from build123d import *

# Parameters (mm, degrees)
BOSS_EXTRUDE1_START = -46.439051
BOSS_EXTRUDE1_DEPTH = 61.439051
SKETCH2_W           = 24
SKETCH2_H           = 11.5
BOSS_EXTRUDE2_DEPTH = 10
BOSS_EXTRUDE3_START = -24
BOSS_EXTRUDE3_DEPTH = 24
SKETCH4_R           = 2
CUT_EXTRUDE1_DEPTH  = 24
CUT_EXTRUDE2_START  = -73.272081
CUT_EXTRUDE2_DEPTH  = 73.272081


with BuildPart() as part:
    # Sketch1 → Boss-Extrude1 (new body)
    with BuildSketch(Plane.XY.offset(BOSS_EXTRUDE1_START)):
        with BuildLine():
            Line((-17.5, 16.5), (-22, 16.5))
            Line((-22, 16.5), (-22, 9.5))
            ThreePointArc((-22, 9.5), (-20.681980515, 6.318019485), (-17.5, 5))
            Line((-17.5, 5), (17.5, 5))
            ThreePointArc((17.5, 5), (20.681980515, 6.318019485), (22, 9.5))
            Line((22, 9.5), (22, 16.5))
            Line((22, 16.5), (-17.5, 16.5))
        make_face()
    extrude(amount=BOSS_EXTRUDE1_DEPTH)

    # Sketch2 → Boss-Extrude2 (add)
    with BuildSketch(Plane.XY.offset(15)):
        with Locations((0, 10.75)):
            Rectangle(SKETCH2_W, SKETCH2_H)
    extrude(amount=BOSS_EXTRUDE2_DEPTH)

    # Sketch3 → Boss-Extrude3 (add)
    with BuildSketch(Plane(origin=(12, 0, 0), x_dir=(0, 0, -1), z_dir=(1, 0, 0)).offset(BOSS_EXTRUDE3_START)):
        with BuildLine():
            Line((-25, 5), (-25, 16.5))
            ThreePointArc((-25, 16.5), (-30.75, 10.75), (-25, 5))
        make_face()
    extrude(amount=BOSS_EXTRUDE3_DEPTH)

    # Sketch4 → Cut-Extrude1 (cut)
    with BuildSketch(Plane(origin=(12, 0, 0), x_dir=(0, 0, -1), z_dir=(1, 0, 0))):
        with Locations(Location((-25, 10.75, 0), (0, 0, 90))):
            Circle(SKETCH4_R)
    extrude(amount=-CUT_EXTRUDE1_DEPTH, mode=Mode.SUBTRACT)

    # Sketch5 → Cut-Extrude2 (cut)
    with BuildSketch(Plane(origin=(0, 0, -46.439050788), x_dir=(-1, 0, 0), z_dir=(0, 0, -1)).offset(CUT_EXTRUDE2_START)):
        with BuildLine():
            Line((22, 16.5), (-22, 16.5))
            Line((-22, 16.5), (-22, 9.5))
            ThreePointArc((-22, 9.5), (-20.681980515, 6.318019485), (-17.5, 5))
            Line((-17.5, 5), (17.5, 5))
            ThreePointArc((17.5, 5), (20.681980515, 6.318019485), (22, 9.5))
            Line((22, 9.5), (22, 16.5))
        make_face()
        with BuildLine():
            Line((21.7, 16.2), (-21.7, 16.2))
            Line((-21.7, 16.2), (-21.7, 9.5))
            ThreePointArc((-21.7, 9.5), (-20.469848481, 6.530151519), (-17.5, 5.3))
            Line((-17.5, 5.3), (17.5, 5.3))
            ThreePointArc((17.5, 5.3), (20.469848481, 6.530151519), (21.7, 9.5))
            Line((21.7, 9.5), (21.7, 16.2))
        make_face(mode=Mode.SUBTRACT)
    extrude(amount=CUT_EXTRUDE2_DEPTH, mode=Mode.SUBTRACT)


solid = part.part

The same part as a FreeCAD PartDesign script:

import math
import FreeCAD as App
import Part
import Sketcher
from FreeCAD import Vector
Q = App.Units.Quantity


def add_polygon(sketch, points):
    """Adds a closed chain of lines whose ends are joined by coincident constraints."""
    first, n = sketch.GeometryCount, len(points)
    for a, b in zip(points, points[1:] + points[:1]):
        sketch.addGeometry(Part.LineSegment(App.Vector(*a, 0), App.Vector(*b, 0)), False)
    for i in range(n):
        sketch.addConstraint(Sketcher.Constraint("Coincident", first + i, 2, first + (i + 1) % n, 1))

doc = App.newDocument("Part")
params = doc.addObject("Spreadsheet::Sheet", "Params")
for row, (alias, value) in enumerate([
    ("sketch1_radius", "4.5 mm"),
    ("sketch1_width", "35 mm"),
    ("sketch1_height", "7 mm"),
    ("pad1_length", "61.439051 mm"),
    ("sketch2_width", "24 mm"),
    ("sketch2_height", "11.5 mm"),
    ("pad2_length", "10 mm"),
    ("sketch3_radius", "5.75 mm"),
    ("pad3_length", "24 mm"),
    ("sketch4_diameter", "4 mm"),
    ("pocket1_length", "24 mm"),
    ("sketch5_radius", "4.5 mm"),
    ("sketch5_radius2", "4.2 mm"),
    ("sketch5_width", "44 mm"),
    ("sketch5_height", "7 mm"),
    ("sketch5_height2", "6.7 mm"),
    ("pocket2_length", "73.272081 mm"),
], start=1):
    params.set(f"A{row}", alias)
    params.set(f"B{row}", "=" + value)
    params.setAlias(f"B{row}", alias)

body = doc.addObject("PartDesign::Body", "Body")

# Sketch on XY plane
sketch1 = doc.addObject("Sketcher::SketchObject", "Sketch")
body.addObject(sketch1)
sketch1.AttachmentSupport = (doc.XY_Plane, [""])
sketch1.MapMode = "FlatFace"
sketch1.AttachmentOffset = App.Placement(Vector(0, 0, -46.439051), App.Rotation())
sketch1.addGeometry(Part.LineSegment(Vector(-22, 16.5, 0), Vector(-22, 9.5, 0)), False)
sketch1.addGeometry(Part.ArcOfCircle(Part.Circle(Vector(-17.5, 9.5, 0), Vector(0, 0, 1), 4.5), math.radians(-180), math.radians(-90)), False)
sketch1.addGeometry(Part.LineSegment(Vector(-17.5, 5, 0), Vector(17.5, 5, 0)), False)
sketch1.addGeometry(Part.ArcOfCircle(Part.Circle(Vector(17.5, 9.5, 0), Vector(0, 0, 1), 4.5), math.radians(-90), math.radians(0)), False)
sketch1.addGeometry(Part.LineSegment(Vector(22, 9.5, 0), Vector(22, 16.5, 0)), False)
sketch1.addGeometry(Part.LineSegment(Vector(22, 16.5, 0), Vector(-22, 16.5, 0)), False)
sketch1.addConstraint(Sketcher.Constraint("Tangent", 0, 2, 1, 1))
sketch1.addConstraint(Sketcher.Constraint("Tangent", 1, 2, 2, 1))
sketch1.addConstraint(Sketcher.Constraint("Tangent", 2, 2, 3, 1))
sketch1.addConstraint(Sketcher.Constraint("Tangent", 3, 2, 4, 1))
sketch1.addConstraint(Sketcher.Constraint("Coincident", 4, 2, 5, 1))
sketch1.addConstraint(Sketcher.Constraint("Coincident", 5, 2, 0, 1))
sketch1.addConstraint(Sketcher.Constraint("Vertical", 0))
sketch1.addConstraint(Sketcher.Constraint("Horizontal", 2))
sketch1.addConstraint(Sketcher.Constraint("Vertical", 4))
sketch1.addConstraint(Sketcher.Constraint("Horizontal", 5))
sketch1.addConstraint(Sketcher.Constraint("Equal", 1, 3))
sketch1.addConstraint(Sketcher.Constraint("Radius", 1, Q("4.5 mm")))
sketch1.addConstraint(Sketcher.Constraint("DistanceX", 2, 1, 2, 2, Q("35 mm")))
sketch1.addConstraint(Sketcher.Constraint("DistanceY", 0, 2, 0, 1, Q("7 mm")))
sketch1.addConstraint(Sketcher.Constraint("DistanceX", 0, 2, -1, 1, Q("22 mm")))
sketch1.addConstraint(Sketcher.Constraint("DistanceY", -1, 1, 1, 2, Q("5 mm")))
sketch1.setExpression("Constraints[11]", "Params.sketch1_radius")
sketch1.setExpression("Constraints[12]", "Params.sketch1_width")
sketch1.setExpression("Constraints[13]", "Params.sketch1_height")
pad1 = doc.addObject("PartDesign::Pad", "Pad")
body.addObject(pad1)
pad1.Profile = sketch1
pad1.setExpression("Length", "Params.pad1_length")

# Sketch on XY plane
sketch2 = doc.addObject("Sketcher::SketchObject", "Sketch001")
body.addObject(sketch2)
sketch2.AttachmentSupport = (doc.XY_Plane, [""])
sketch2.MapMode = "FlatFace"
sketch2.AttachmentOffset = App.Placement(Vector(0, 0, 15), App.Rotation())
add_polygon(sketch2, [(-12, 16), (-12, 5), (12, 5), (12, 16)])  # lines 0-3
sketch2.addConstraint(Sketcher.Constraint("Vertical", 0))
sketch2.addConstraint(Sketcher.Constraint("Horizontal", 1))
sketch2.addConstraint(Sketcher.Constraint("Vertical", 2))
sketch2.addConstraint(Sketcher.Constraint("Horizontal", 3))
sketch2.addConstraint(Sketcher.Constraint("DistanceX", 1, 1, 1, 2, Q("24 mm")))
sketch2.addConstraint(Sketcher.Constraint("DistanceY", 0, 2, 0, 1, Q("11.5 mm")))
sketch2.addConstraint(Sketcher.Constraint("DistanceX", 0, 2, -1, 1, Q("12 mm")))
sketch2.addConstraint(Sketcher.Constraint("DistanceY", -1, 1, 0, 2, Q("5 mm")))
sketch2.setExpression("Constraints[8]", "Params.sketch2_width")
sketch2.setExpression("Constraints[9]", "Params.sketch2_height")
pad2 = doc.addObject("PartDesign::Pad", "Pad001")
body.addObject(pad2)
pad2.Profile = sketch2
pad2.setExpression("Length", "Params.pad2_length")

# Sketch on YZ plane
sketch3 = doc.addObject("Sketcher::SketchObject", "Sketch002")
body.addObject(sketch3)
sketch3.AttachmentSupport = (doc.YZ_Plane, [""])
sketch3.MapMode = "FlatFace"
sketch3.AttachmentOffset = App.Placement(Vector(0, 0, -12), App.Rotation())
sketch3.addGeometry(Part.LineSegment(Vector(5, 25, 0), Vector(16, 25, 0)), False)
sketch3.addGeometry(Part.ArcOfCircle(Part.Circle(Vector(11, 25, 0), Vector(0, 0, 1), 6), math.radians(0), math.radians(180)), False)
sketch3.addConstraint(Sketcher.Constraint("Coincident", 0, 1, 1, 2))
sketch3.addConstraint(Sketcher.Constraint("Coincident", 1, 1, 0, 2))
sketch3.addConstraint(Sketcher.Constraint("Horizontal", 0))
sketch3.addConstraint(Sketcher.Constraint("Horizontal", 1, 3, 0, 1))
sketch3.addConstraint(Sketcher.Constraint("Radius", 1, Q("5.75 mm")))
sketch3.addConstraint(Sketcher.Constraint("DistanceY", -1, 1, 1, 3, Q("25 mm")))
sketch3.addConstraint(Sketcher.Constraint("DistanceX", -1, 1, 0, 1, Q("5 mm")))
sketch3.setExpression("Constraints[4]", "Params.sketch3_radius")
pad3 = doc.addObject("PartDesign::Pad", "Pad002")
body.addObject(pad3)
pad3.Profile = sketch3
pad3.setExpression("Length", "Params.pad3_length")

# Sketch on YZ plane
sketch4 = doc.addObject("Sketcher::SketchObject", "Sketch003")
body.addObject(sketch4)
sketch4.AttachmentSupport = (doc.YZ_Plane, [""])
sketch4.MapMode = "FlatFace"
sketch4.AttachmentOffset = App.Placement(Vector(0, 0, 12), App.Rotation())
sketch4.addGeometry(Part.Circle(Vector(10.8, 25, 0), Vector(0, 0, 1), 2), False)
sketch4.addConstraint(Sketcher.Constraint("Diameter", 0, Q("4 mm")))
sketch4.addConstraint(Sketcher.Constraint("DistanceY", -1, 1, 0, 3, Q("25 mm")))
sketch4.addConstraint(Sketcher.Constraint("DistanceX", -1, 1, 0, 3, Q("10.75 mm")))
sketch4.setExpression("Constraints[0]", "Params.sketch4_diameter")
pocket1 = doc.addObject("PartDesign::Pocket", "Pocket")
body.addObject(pocket1)
pocket1.Profile = sketch4
pocket1.setExpression("Length", "Params.pocket1_length")

# Sketch on XY plane
sketch5 = doc.addObject("Sketcher::SketchObject", "Sketch004")
body.addObject(sketch5)
sketch5.AttachmentSupport = (doc.XY_Plane, [""])
sketch5.MapMode = "FlatFace"
sketch5.AttachmentOffset = App.Placement(Vector(0, 0, 26.83303), App.Rotation())
sketch5.addGeometry(Part.LineSegment(Vector(-22, 16.5, 0), Vector(22, 16.5, 0)), False)
sketch5.addGeometry(Part.LineSegment(Vector(22, 16.5, 0), Vector(22, 9.5, 0)), False)
sketch5.addGeometry(Part.ArcOfCircle(Part.Circle(Vector(17.5, 9.5, 0), Vector(0, 0, 1), 4.5), math.radians(-90), math.radians(0)), False)
sketch5.addGeometry(Part.LineSegment(Vector(17.5, 5, 0), Vector(-17.5, 5, 0)), False)
sketch5.addGeometry(Part.ArcOfCircle(Part.Circle(Vector(-17.5, 9.5, 0), Vector(0, 0, 1), 4.5), math.radians(-180), math.radians(-90)), False)
sketch5.addGeometry(Part.LineSegment(Vector(-22, 9.5, 0), Vector(-22, 16.5, 0)), False)
sketch5.addGeometry(Part.LineSegment(Vector(21.7, 16.2, 0), Vector(-21.7, 16.2, 0)), False)
sketch5.addGeometry(Part.LineSegment(Vector(-21.7, 16.2, 0), Vector(-21.7, 9.5, 0)), False)
sketch5.addGeometry(Part.ArcOfCircle(Part.Circle(Vector(-17.5, 9.5, 0), Vector(0, 0, 1), 4.2), math.radians(180), math.radians(270)), False)
sketch5.addGeometry(Part.LineSegment(Vector(-17.5, 5.3, 0), Vector(17.5, 5.3, 0)), False)
sketch5.addGeometry(Part.ArcOfCircle(Part.Circle(Vector(17.5, 9.5, 0), Vector(0, 0, 1), 4.2), math.radians(-90), math.radians(0)), False)
sketch5.addGeometry(Part.LineSegment(Vector(21.7, 9.5, 0), Vector(21.7, 16.2, 0)), False)
sketch5.addConstraint(Sketcher.Constraint("Coincident", 0, 2, 1, 1))
sketch5.addConstraint(Sketcher.Constraint("Tangent", 1, 2, 2, 2))
sketch5.addConstraint(Sketcher.Constraint("Tangent", 2, 1, 3, 1))
sketch5.addConstraint(Sketcher.Constraint("Tangent", 3, 2, 4, 2))
sketch5.addConstraint(Sketcher.Constraint("Tangent", 4, 1, 5, 1))
sketch5.addConstraint(Sketcher.Constraint("Coincident", 5, 2, 0, 1))
sketch5.addConstraint(Sketcher.Constraint("Coincident", 6, 2, 7, 1))
sketch5.addConstraint(Sketcher.Constraint("Tangent", 7, 2, 8, 1))
sketch5.addConstraint(Sketcher.Constraint("Tangent", 8, 2, 9, 1))
sketch5.addConstraint(Sketcher.Constraint("Tangent", 9, 2, 10, 1))
sketch5.addConstraint(Sketcher.Constraint("Tangent", 10, 2, 11, 1))
sketch5.addConstraint(Sketcher.Constraint("Coincident", 11, 2, 6, 1))
sketch5.addConstraint(Sketcher.Constraint("Horizontal", 0))
sketch5.addConstraint(Sketcher.Constraint("Vertical", 1))
sketch5.addConstraint(Sketcher.Constraint("Horizontal", 3))
sketch5.addConstraint(Sketcher.Constraint("Vertical", 5))
sketch5.addConstraint(Sketcher.Constraint("Horizontal", 6))
sketch5.addConstraint(Sketcher.Constraint("Vertical", 7))
sketch5.addConstraint(Sketcher.Constraint("Horizontal", 9))
sketch5.addConstraint(Sketcher.Constraint("Vertical", 11))
sketch5.addConstraint(Sketcher.Constraint("Coincident", 8, 3, 4, 3))
sketch5.addConstraint(Sketcher.Constraint("Coincident", 10, 3, 2, 3))
sketch5.addConstraint(Sketcher.Constraint("Equal", 2, 4))
sketch5.addConstraint(Sketcher.Constraint("Radius", 2, Q("4.5 mm")))
sketch5.addConstraint(Sketcher.Constraint("Radius", 8, Q("4.2 mm")))
sketch5.addConstraint(Sketcher.Constraint("DistanceX", 0, 1, 0, 2, Q("44 mm")))
sketch5.addConstraint(Sketcher.Constraint("DistanceY", 1, 2, 1, 1, Q("7 mm")))
sketch5.addConstraint(Sketcher.Constraint("DistanceY", 7, 2, 7, 1, Q("6.7 mm")))
sketch5.addConstraint(Sketcher.Constraint("DistanceX", -1, 1, 0, 2, Q("22 mm")))
sketch5.addConstraint(Sketcher.Constraint("DistanceY", -1, 1, 2, 1, Q("5 mm")))
sketch5.setExpression("Constraints[23]", "Params.sketch5_radius")
sketch5.setExpression("Constraints[24]", "Params.sketch5_radius2")
sketch5.setExpression("Constraints[25]", "Params.sketch5_width")
sketch5.setExpression("Constraints[26]", "Params.sketch5_height")
sketch5.setExpression("Constraints[27]", "Params.sketch5_height2")
pocket2 = doc.addObject("PartDesign::Pocket", "Pocket001")
body.addObject(pocket2)
pocket2.Profile = sketch5
pocket2.setExpression("Length", "Params.pocket2_length")

doc.recompute()
